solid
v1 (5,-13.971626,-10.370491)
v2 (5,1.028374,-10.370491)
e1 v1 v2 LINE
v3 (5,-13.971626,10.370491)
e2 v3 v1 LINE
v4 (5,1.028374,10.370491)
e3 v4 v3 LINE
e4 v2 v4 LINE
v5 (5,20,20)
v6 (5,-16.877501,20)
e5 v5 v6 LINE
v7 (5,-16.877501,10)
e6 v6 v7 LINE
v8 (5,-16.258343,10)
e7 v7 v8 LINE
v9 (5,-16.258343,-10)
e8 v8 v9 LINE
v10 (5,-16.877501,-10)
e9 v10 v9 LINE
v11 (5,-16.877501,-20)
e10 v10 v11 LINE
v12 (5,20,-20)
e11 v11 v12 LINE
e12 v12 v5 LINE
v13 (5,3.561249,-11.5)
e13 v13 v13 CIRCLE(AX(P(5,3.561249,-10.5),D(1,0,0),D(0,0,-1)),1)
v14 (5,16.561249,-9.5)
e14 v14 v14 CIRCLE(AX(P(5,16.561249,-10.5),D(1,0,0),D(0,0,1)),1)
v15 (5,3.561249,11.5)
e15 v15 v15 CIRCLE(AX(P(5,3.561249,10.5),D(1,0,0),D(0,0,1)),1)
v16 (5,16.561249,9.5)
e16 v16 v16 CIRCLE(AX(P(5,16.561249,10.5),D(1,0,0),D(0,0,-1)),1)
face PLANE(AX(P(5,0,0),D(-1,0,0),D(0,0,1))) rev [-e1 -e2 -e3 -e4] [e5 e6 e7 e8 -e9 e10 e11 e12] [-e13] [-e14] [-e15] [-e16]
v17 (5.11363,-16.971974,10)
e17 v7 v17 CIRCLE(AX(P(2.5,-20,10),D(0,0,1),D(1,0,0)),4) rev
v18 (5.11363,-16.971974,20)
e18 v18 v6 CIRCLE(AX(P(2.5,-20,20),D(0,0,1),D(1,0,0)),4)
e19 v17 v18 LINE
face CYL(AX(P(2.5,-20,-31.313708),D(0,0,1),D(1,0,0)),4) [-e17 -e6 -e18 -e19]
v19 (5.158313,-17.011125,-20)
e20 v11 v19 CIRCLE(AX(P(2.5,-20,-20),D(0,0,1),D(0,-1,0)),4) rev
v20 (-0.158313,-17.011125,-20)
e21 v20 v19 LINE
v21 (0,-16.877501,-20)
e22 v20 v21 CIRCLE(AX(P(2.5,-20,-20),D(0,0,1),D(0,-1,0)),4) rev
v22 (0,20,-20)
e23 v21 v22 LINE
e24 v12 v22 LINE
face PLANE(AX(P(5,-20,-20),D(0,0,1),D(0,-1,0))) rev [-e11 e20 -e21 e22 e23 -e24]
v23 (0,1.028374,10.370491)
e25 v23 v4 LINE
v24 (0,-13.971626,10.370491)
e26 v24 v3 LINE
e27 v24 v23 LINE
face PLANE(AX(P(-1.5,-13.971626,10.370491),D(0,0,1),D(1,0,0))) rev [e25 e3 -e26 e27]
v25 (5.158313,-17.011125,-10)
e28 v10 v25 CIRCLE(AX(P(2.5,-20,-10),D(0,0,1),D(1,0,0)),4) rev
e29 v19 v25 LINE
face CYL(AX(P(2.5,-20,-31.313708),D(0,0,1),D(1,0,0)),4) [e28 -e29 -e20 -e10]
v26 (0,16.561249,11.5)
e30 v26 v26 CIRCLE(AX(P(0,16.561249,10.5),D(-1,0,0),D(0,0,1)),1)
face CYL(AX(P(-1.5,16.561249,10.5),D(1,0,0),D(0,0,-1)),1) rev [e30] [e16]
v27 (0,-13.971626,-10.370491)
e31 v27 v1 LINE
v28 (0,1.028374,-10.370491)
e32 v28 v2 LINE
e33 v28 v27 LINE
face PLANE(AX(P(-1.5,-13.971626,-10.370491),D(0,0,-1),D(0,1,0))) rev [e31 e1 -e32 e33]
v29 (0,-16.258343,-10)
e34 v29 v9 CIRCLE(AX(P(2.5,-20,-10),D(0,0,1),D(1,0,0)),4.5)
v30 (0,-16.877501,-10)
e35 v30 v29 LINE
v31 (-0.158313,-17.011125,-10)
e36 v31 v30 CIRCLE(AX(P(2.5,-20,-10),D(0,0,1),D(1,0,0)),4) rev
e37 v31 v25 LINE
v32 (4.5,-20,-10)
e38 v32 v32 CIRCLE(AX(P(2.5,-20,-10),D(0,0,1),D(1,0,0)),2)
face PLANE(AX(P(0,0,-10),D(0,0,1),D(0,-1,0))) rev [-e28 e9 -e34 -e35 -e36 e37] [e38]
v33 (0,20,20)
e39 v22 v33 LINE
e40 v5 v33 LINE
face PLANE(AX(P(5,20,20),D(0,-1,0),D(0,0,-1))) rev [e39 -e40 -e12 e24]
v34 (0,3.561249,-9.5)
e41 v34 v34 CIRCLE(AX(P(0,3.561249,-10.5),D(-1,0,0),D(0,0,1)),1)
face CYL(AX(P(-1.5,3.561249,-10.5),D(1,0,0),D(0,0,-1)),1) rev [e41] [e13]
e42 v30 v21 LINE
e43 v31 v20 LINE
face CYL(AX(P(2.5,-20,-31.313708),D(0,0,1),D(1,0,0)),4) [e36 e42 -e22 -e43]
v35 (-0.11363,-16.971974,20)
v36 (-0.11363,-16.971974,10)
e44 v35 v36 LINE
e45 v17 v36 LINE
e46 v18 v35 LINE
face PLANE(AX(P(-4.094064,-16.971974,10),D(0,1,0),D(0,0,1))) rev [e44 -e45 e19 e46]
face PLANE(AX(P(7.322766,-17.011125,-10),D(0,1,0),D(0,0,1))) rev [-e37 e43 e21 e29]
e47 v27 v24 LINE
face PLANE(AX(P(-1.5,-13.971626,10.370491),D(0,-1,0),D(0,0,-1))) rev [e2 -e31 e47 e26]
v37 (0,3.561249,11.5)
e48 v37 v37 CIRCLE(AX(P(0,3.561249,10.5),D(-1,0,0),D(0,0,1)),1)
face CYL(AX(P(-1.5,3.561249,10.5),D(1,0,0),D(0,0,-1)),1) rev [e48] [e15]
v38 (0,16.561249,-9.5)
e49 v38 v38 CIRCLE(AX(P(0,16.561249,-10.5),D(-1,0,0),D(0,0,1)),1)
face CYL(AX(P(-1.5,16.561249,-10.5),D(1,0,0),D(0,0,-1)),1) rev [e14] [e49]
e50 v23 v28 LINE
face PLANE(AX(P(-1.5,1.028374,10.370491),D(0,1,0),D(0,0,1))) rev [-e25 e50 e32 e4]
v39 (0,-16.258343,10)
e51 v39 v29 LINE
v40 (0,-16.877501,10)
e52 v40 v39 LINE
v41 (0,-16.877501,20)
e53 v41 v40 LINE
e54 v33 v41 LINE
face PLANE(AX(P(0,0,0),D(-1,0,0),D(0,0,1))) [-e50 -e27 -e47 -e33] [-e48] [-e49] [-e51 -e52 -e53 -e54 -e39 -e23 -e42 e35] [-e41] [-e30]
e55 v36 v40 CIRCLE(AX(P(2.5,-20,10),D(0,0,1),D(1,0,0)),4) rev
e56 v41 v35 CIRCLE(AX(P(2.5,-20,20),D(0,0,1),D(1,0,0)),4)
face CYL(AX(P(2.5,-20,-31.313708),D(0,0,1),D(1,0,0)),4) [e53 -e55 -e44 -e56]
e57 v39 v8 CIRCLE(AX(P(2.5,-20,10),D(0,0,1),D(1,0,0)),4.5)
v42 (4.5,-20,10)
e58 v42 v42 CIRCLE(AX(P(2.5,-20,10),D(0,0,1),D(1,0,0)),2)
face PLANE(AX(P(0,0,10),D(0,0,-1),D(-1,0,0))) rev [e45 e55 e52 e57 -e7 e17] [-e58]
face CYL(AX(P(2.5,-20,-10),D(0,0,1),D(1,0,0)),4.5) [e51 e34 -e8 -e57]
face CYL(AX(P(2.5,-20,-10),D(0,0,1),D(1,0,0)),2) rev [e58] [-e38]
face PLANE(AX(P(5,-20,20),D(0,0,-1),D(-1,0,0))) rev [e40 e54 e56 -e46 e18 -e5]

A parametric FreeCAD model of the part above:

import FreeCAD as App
import Part
import Sketcher
from FreeCAD import Vector


def add_polygon(sketch, points):
    """Adds a closed chain of lines whose ends are joined by coincident constraints."""
    first, n = sketch.GeometryCount, len(points)
    for a, b in zip(points, points[1:] + points[:1]):
        sketch.addGeometry(Part.LineSegment(App.Vector(*a, 0), App.Vector(*b, 0)), False)
    for i in range(n):
        sketch.addConstraint(Sketcher.Constraint("Coincident", first + i, 2, first + (i + 1) % n, 1))

doc = App.newDocument("Part")
body = doc.addObject("PartDesign::Body", "Body")

# Sketch on YZ plane
sketch1 = doc.addObject("Sketcher::SketchObject", "Sketch")
body.addObject(sketch1)
sketch1.AttachmentSupport = (doc.YZ_Plane, [""])
sketch1.MapMode = "FlatFace"
add_polygon(sketch1, [(20, 20), (-20, 20), (-20, -20), (20, -20)])  # lines 0-3
sketch1.addConstraint([
    Sketcher.Constraint("Horizontal", 0),
    Sketcher.Constraint("Vertical", 1),
    Sketcher.Constraint("Horizontal", 2),
    Sketcher.Constraint("Vertical", 3),
    Sketcher.Constraint("Symmetric", 0, 2, 2, 2, -1, 1),
    Sketcher.Constraint("Equal", 2, 1),
    Sketcher.Constraint("DistanceX", 0, 2, 0, 1, 40.0),
])
pad1 = doc.addObject("PartDesign::Pad", "Pad")
body.addObject(pad1)
pad1.Profile = sketch1
pad1.Length = 5

# Sketch on XY plane
sketch2 = doc.addObject("Sketcher::SketchObject", "Sketch001")
body.addObject(sketch2)
sketch2.AttachmentSupport = (doc.XY_Plane, [""])
sketch2.MapMode = "FlatFace"
sketch2.AttachmentOffset = App.Placement(Vector(0, 0, 20), App.Rotation())
sketch2.addGeometry([
    Part.Circle(Vector(2.5, -20, 0), Vector(0, 0, 1), 4),
    Part.Circle(Vector(2.5, -20, 0), Vector(0, 0, 1), 1.5),
], False)
sketch2.addConstraint([
    Sketcher.Constraint("Coincident", 1, 3, 0, 3),
    Sketcher.Constraint("Diameter", 0, 8.0),
    Sketcher.Constraint("Diameter", 1, 3.0),
    Sketcher.Constraint("DistanceY", 0, 3, -1, 1, 20.0),
    Sketcher.Constraint("DistanceX", -1, 1, 0, 3, 2.5),
])
pad2 = doc.addObject("PartDesign::Pad", "Pad001")
body.addObject(pad2)
pad2.Profile = sketch2
pad2.Length = 40
pad2.Reversed = True

# Sketch on XY plane
sketch3 = doc.addObject("Sketcher::SketchObject", "Sketch002")
body.addObject(sketch3)
sketch3.AttachmentSupport = (doc.XY_Plane, [""])
sketch3.MapMode = "FlatFace"
sketch3.AttachmentOffset = App.Placement(Vector(0, 0, 20), App.Rotation())
sketch3.addGeometry(Part.Circle(Vector(2.5, -20, 0), Vector(0, 0, 1), 1.5), False)
sketch3.addConstraint([
    Sketcher.Constraint("Diameter", 0, 3.0),
    Sketcher.Constraint("DistanceY", 0, 3, -1, 1, 20.0),
    Sketcher.Constraint("DistanceX", -1, 1, 0, 3, 2.5),
])
pocket1 = doc.addObject("PartDesign::Pocket", "Pocket")
body.addObject(pocket1)
pocket1.Profile = sketch3
pocket1.Length = 40

# Sketch on XY plane
sketch4 = doc.addObject("Sketcher::SketchObject", "Sketch003")
body.addObject(sketch4)
sketch4.AttachmentSupport = (doc.XY_Plane, [""])
sketch4.MapMode = "FlatFace"
sketch4.AttachmentOffset = App.Placement(Vector(0, 0, -20), App.Rotation())
add_polygon(sketch4, [(7, -17), (7, -26), (-2, -26), (-2, -17)])  # lines 0-3
sketch4.addConstraint([
    Sketcher.Constraint("Vertical", 0),
    Sketcher.Constraint("Horizontal", 1),
    Sketcher.Constraint("Vertical", 2),
    Sketcher.Constraint("Horizontal", 3),
    Sketcher.Constraint("DistanceY", 0, 2, 0, 1, 8.97775),
    Sketcher.Constraint("DistanceX", 1, 2, 1, 1, 9.645533),
    Sketcher.Constraint("DistanceX", -1, 1, 0, 2, 7.322766),
    Sketcher.Constraint("DistanceY", 0, 2, -1, 1, 25.988875),
])
pocket2 = doc.addObject("PartDesign::Pocket", "Pocket001")
body.addObject(pocket2)
pocket2.Profile = sketch4
pocket2.Length = 10
pocket2.Reversed = True

# Sketch on XY plane
sketch5 = doc.addObject("Sketcher::SketchObject", "Sketch004")
body.addObject(sketch5)
sketch5.AttachmentSupport = (doc.XY_Plane, [""])
sketch5.MapMode = "FlatFace"
sketch5.AttachmentOffset = App.Placement(Vector(0, 0, 20), App.Rotation())
add_polygon(sketch5, [(-4, -17), (-4, -31), (9, -31), (9, -17)])  # lines 0-3
sketch5.addConstraint([
    Sketcher.Constraint("Vertical", 0),
    Sketcher.Constraint("Horizontal", 1),
    Sketcher.Constraint("Vertical", 2),
    Sketcher.Constraint("Horizontal", 3),
    Sketcher.Constraint("DistanceX", 1, 1, 1, 2, 13.188128),
    Sketcher.Constraint("DistanceY", 0, 2, 0, 1, 14.056051),
    Sketcher.Constraint("DistanceX", 0, 2, -1, 1, 4.094064),
    Sketcher.Constraint("DistanceY", 0, 2, -1, 1, 31.028026),
])
pocket3 = doc.addObject("PartDesign::Pocket", "Pocket002")
body.addObject(pocket3)
pocket3.Profile = sketch5
pocket3.Length = 10

# Sketch on YZ plane
sketch6 = doc.addObject("Sketcher::SketchObject", "Sketch005")
body.addObject(sketch6)
sketch6.AttachmentSupport = (doc.YZ_Plane, [""])
sketch6.MapMode = "FlatFace"
sketch6.AttachmentOffset = App.Placement(Vector(0, 0, 5), App.Rotation())
sketch6.addGeometry([
    Part.Circle(Vector(16.6, 10.5, 0), Vector(0, 0, 1), 1),
    Part.Circle(Vector(16.6, -10.5, 0), Vector(0, 0, 1), 1),
    Part.Circle(Vector(3.6, -10.5, 0), Vector(0, 0, 1), 1),
    Part.Circle(Vector(3.6, 10.5, 0), Vector(0, 0, 1), 1),
], False)
sketch6.addConstraint([
    Sketcher.Constraint("Equal", 0, 1),
    Sketcher.Constraint("Equal", 1, 2),
    Sketcher.Constraint("Equal", 2, 3),
    Sketcher.Constraint("Symmetric", 0, 3, 1, 3, -1),
    Sketcher.Constraint("Symmetric", 2, 3, 3, 3, -1),
    Sketcher.Constraint("Horizontal", 1, 3, 2, 3),
    Sketcher.Constraint("Diameter", 0, 2.0),
    Sketcher.Constraint("DistanceY", 1, 3, 0, 3, 21.0),
    Sketcher.Constraint("DistanceX", 2, 3, 1, 3, 13.0),
    Sketcher.Constraint("DistanceX", -1, 1, 0, 3, 16.561249),
])
pocket4 = doc.addObject("PartDesign::Pocket", "Pocket003")
body.addObject(pocket4)
pocket4.Profile = sketch6
pocket4.Type = "ThroughAll"

# Sketch on YZ plane
sketch7 = doc.addObject("Sketcher::SketchObject", "Sketch006")
body.addObject(sketch7)
sketch7.AttachmentSupport = (doc.YZ_Plane, [""])
sketch7.MapMode = "FlatFace"
sketch7.AttachmentOffset = App.Placement(Vector(0, 0, 5), App.Rotation())
add_polygon(sketch7, [(1, 10), (-14, 10), (-14, -10), (1, -10)])  # lines 0-3
sketch7.addConstraint([
    Sketcher.Constraint("Horizontal", 0),
    Sketcher.Constraint("Vertical", 1),
    Sketcher.Constraint("Horizontal", 2),
    Sketcher.Constraint("Vertical", 3),
    Sketcher.Constraint("DistanceX", 0, 2, 0, 1, 15.0),
    Sketcher.Constraint("DistanceY", 1, 2, 1, 1, 20.740982),
    Sketcher.Constraint("DistanceY", -1, 1, 0, 2, 10.370491),
    Sketcher.Constraint("DistanceX", 0, 2, -1, 1, 13.971626),
])
pocket5 = doc.addObject("PartDesign::Pocket", "Pocket004")
body.addObject(pocket5)
pocket5.Profile = sketch7
pocket5.Type = "ThroughAll"

# Sketch on XY plane
sketch8 = doc.addObject("Sketcher::SketchObject", "Sketch007")
body.addObject(sketch8)
sketch8.AttachmentSupport = (doc.XY_Plane, [""])
sketch8.MapMode = "FlatFace"
sketch8.AttachmentOffset = App.Placement(Vector(0, 0, 10), App.Rotation())
sketch8.addGeometry(Part.Circle(Vector(2.5, -20, 0), Vector(0, 0, 1), 4.5), False)
sketch8.addConstraint([
    Sketcher.Constraint("Diameter", 0, 9.0),
    Sketcher.Constraint("DistanceY", 0, 3, -1, 1, 20.0),
    Sketcher.Constraint("DistanceX", -1, 1, 0, 3, 2.5),
])
pad3 = doc.addObject("PartDesign::Pad", "Pad002")
body.addObject(pad3)
pad3.Profile = sketch8
pad3.Length = 20
pad3.Reversed = True

# Sketch on XY plane
sketch9 = doc.addObject("Sketcher::SketchObject", "Sketch008")
body.addObject(sketch9)
sketch9.AttachmentSupport = (doc.XY_Plane, [""])
sketch9.MapMode = "FlatFace"
sketch9.AttachmentOffset = App.Placement(Vector(0, 0, 10), App.Rotation())
sketch9.addGeometry(Part.Circle(Vector(2.5, -20, 0), Vector(0, 0, 1), 2), False)
sketch9.addConstraint([
    Sketcher.Constraint("Diameter", 0, 4.0),
    Sketcher.Constraint("DistanceY", 0, 3, -1, 1, 20.0),
    Sketcher.Constraint("DistanceX", -1, 1, 0, 3, 2.5),
])
pocket6 = doc.addObject("PartDesign::Pocket", "Pocket005")
body.addObject(pocket6)
pocket6.Profile = sketch9
pocket6.Length = 20

doc.recompute()
